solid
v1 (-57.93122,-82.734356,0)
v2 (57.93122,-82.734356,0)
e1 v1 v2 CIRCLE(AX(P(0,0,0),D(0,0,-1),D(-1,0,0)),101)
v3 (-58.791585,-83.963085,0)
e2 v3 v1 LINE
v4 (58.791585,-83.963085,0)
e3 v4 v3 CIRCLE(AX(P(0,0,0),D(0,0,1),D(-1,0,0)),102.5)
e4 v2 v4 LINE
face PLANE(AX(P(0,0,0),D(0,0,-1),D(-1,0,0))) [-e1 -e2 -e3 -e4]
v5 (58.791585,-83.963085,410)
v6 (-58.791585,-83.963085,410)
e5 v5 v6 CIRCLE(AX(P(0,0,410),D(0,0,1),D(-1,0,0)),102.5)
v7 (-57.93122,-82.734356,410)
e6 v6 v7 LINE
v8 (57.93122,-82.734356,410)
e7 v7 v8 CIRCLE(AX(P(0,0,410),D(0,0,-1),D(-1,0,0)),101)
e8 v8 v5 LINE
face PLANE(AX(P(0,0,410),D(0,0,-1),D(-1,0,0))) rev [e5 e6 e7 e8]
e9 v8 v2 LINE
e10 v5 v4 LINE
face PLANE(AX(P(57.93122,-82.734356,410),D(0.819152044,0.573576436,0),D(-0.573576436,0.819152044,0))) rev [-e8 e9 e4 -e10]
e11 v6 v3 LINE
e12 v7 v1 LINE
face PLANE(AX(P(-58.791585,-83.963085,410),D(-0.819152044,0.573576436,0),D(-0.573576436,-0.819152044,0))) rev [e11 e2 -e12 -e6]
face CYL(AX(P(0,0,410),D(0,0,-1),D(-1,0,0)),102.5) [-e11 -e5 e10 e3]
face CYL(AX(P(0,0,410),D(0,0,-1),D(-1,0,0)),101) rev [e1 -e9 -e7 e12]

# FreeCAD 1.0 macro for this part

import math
import FreeCAD as App
import Part
import Sketcher

V = App.Vector
Q = App.Units.Quantity

doc = App.newDocument("Part")
params = doc.addObject("Spreadsheet::Sheet", "Params")
for row, (alias, value) in enumerate([
    ("sketch1_radius", "101 mm"),
    ("sketch1_radius2", "102.5 mm"),
    ("pad1_length", "410 mm"),
], start=1):
    params.set(f"A{row}", alias)
    params.set(f"B{row}", "=" + value)
    params.setAlias(f"B{row}", alias)

body = doc.addObject("PartDesign::Body", "Body")

# Sketch on XY plane
sketch1 = doc.addObject("Sketcher::SketchObject", "Sketch")
body.addObject(sketch1)
sketch1.AttachmentSupport = (doc.XY_Plane, [""])
sketch1.MapMode = "FlatFace"
sketch1.addGeometry([
    Part.LineSegment(V(-58.8, -84, 0), V(-57.9, -82.7, 0)),
    Part.ArcOfCircle(Part.Circle(V(0, 0, 0), V(0, 0, 1), 101), math.radians(-55), math.radians(235)),
    Part.LineSegment(V(57.9, -82.7, 0), V(58.8, -84, 0)),
    Part.ArcOfCircle(Part.Circle(V(0, 0, 0), V(0, 0, 1), 102.5), math.radians(-55), math.radians(235)),
], False)
sketch1.addConstraint([
    Sketcher.Constraint("Coincident", 0, 2, 1, 2),
    Sketcher.Constraint("Coincident", 1, 1, 2, 1),
    Sketcher.Constraint("Coincident", 2, 2, 3, 1),
    Sketcher.Constraint("Coincident", 3, 2, 0, 1),
    Sketcher.Constraint("Coincident", 1, 3, -1, 1),
    Sketcher.Constraint("Coincident", 3, 3, -1, 1),
    Sketcher.Constraint("Horizontal", 0, 2, 1, 1),
    Sketcher.Constraint("Horizontal", 2, 2, 3, 2),
    Sketcher.Constraint("Radius", 1, 101.0),
    Sketcher.Constraint("Radius", 3, 102.5),
    Sketcher.Constraint("Angle", 0, Q("55 deg")),
    Sketcher.Constraint("DistanceX", 0, 2, -1, 1, 57.93122),
])
sketch1.setExpression("Constraints[8]", "Params.sketch1_radius")
sketch1.setExpression("Constraints[9]", "Params.sketch1_radius2")
pad1 = doc.addObject("PartDesign::Pad", "Pad")
body.addObject(pad1)
pad1.Profile = sketch1
pad1.setExpression("Length", "Params.pad1_length")

doc.recompute()
